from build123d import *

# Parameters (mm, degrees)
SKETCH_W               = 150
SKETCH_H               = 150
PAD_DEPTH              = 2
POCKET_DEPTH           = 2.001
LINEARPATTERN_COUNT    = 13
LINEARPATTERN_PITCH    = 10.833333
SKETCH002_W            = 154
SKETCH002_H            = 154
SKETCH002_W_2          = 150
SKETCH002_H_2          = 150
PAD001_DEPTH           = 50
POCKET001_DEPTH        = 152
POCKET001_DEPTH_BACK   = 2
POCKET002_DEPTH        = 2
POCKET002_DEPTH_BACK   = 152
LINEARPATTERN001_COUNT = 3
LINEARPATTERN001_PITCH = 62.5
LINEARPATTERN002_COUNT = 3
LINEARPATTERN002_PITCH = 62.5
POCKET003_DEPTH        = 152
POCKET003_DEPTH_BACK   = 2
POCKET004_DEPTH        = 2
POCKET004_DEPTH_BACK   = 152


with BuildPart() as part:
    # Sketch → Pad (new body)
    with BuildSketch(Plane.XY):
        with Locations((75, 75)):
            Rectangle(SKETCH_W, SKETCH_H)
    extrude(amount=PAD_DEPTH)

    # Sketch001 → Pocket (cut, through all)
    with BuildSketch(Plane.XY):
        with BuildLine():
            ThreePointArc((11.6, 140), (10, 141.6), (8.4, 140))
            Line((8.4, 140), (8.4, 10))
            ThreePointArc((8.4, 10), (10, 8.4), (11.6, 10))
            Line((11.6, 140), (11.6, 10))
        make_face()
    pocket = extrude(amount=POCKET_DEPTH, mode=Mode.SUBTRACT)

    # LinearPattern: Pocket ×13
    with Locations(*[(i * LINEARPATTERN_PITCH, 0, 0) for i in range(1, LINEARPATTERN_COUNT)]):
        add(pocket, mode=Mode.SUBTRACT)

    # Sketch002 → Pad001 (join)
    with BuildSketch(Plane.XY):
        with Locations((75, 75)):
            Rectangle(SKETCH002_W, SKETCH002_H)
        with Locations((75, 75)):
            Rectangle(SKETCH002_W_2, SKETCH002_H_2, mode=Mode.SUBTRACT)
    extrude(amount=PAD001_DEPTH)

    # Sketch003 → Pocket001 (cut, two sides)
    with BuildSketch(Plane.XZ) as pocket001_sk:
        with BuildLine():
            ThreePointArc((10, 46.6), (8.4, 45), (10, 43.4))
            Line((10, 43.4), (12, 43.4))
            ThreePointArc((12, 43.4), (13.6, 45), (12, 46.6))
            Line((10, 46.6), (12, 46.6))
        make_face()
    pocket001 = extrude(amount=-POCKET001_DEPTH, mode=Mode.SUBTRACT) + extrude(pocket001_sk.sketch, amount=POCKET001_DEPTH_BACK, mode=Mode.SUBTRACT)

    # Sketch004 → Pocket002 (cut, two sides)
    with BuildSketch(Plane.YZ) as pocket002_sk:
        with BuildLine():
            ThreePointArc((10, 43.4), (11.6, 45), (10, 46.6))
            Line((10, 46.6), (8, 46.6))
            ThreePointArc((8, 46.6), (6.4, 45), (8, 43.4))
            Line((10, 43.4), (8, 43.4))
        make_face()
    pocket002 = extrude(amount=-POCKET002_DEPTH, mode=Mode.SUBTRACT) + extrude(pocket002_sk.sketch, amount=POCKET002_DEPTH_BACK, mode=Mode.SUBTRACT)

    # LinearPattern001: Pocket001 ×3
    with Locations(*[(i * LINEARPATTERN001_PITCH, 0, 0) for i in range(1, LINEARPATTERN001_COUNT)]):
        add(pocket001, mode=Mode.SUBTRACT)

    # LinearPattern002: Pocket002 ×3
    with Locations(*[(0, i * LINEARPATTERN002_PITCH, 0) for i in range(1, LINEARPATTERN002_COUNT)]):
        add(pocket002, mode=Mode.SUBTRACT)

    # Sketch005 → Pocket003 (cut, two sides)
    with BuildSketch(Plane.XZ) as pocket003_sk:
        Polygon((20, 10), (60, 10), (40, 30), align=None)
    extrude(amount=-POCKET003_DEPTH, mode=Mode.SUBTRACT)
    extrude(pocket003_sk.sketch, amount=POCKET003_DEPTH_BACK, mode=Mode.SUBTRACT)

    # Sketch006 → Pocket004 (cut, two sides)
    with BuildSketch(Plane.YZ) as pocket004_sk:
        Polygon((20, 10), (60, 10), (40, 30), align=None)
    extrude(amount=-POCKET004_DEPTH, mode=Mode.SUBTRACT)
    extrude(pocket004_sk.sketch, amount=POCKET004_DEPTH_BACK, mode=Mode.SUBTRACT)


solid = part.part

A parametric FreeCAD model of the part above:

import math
import FreeCAD as App
import Part
import Sketcher

V = App.Vector
Q = App.Units.Quantity

doc = App.newDocument("Part")
body = doc.addObject("PartDesign::Body", "Body")

sketch1 = doc.addObject("Sketcher::SketchObject", "Sketch")
body.addObject(sketch1)
sketch1.AttachmentSupport = (doc.XY_Plane, [""])
sketch1.MapMode = "FlatFace"
sketch1.addGeometry([
    Part.LineSegment(V(0, 150, 0), V(0, 0, 0)),
    Part.LineSegment(V(0, 0, 0), V(150, 0, 0)),
    Part.LineSegment(V(150, 0, 0), V(150, 150, 0)),
    Part.LineSegment(V(150, 150, 0), V(0, 150, 0)),
], False)
sketch1.addConstraint([
    Sketcher.Constraint("Coincident", 0, 2, 1, 1),
    Sketcher.Constraint("Coincident", 1, 2, 2, 1),
    Sketcher.Constraint("Coincident", 2, 2, 3, 1),
    Sketcher.Constraint("Coincident", 3, 2, 0, 1),
    Sketcher.Constraint("Vertical", 0),
    Sketcher.Constraint("Horizontal", 1),
    Sketcher.Constraint("Vertical", 2),
    Sketcher.Constraint("Horizontal", 3),
    Sketcher.Constraint("Coincident", 0, 2, -1, 1),
    Sketcher.Constraint("Equal", 3, 0),
    Sketcher.Constraint("DistanceX", 1, 1, 1, 2, Q("150 mm")),
])
pad1 = doc.addObject("PartDesign::Pad", "Pad")
body.addObject(pad1)
pad1.Profile = sketch1
pad1.Length = 2

sketch2 = doc.addObject("Sketcher::SketchObject", "Sketch001")
body.addObject(sketch2)
sketch2.AttachmentSupport = (doc.XY_Plane, [""])
sketch2.MapMode = "FlatFace"
sketch2.addGeometry([
    Part.ArcOfCircle(Part.Circle(V(10, 140, 0), V(0, 0, 1), 1.6), math.radians(0), math.radians(180)),
    Part.LineSegment(V(8.4, 140, 0), V(8.4, 10, 0)),
    Part.ArcOfCircle(Part.Circle(V(10, 10, 0), V(0, 0, 1), 1.6), math.radians(180), math.radians(360)),
    Part.LineSegment(V(11.6, 10, 0), V(11.6, 140, 0)),
], False)
sketch2.addConstraint([
    Sketcher.Constraint("Tangent", 0, 2, 1, 1),
    Sketcher.Constraint("Tangent", 1, 2, 2, 1),
    Sketcher.Constraint("Tangent", 2, 2, 3, 1),
    Sketcher.Constraint("Tangent", 3, 2, 0, 1),
    Sketcher.Constraint("Vertical", 1),
    Sketcher.Constraint("Vertical", 3),
    Sketcher.Constraint("Radius", 0, Q("1.6 mm")),
    Sketcher.Constraint("DistanceY", 1, 2, 1, 1, Q("130 mm")),
    Sketcher.Constraint("DistanceX", -1, 1, 0, 3, Q("10 mm")),
    Sketcher.Constraint("DistanceY", -1, 1, 0, 3, Q("140 mm")),
])
pocket1 = doc.addObject("PartDesign::Pocket", "Pocket")
body.addObject(pocket1)
pocket1.Profile = sketch2
pocket1.Type = "ThroughAll"
pocket1.Reversed = True
doc.recompute()

linearpattern = doc.addObject("PartDesign::LinearPattern", "LinearPattern")
body.addObject(linearpattern)
linearpattern.Originals = [pocket1]
linearpattern.Direction = (doc.X_Axis, [""])
linearpattern.Mode = "offset"
linearpattern.Offset = 10.833333
linearpattern.Occurrences = 13
body.Tip = linearpattern

sketch3 = doc.addObject("Sketcher::SketchObject", "Sketch002")
body.addObject(sketch3)
sketch3.AttachmentSupport = (doc.XY_Plane, [""])
sketch3.MapMode = "FlatFace"
sketch3.addGeometry([
    Part.LineSegment(V(-2, 152, 0), V(-2, -2, 0)),
    Part.LineSegment(V(-2, -2, 0), V(152, -2, 0)),
    Part.LineSegment(V(152, -2, 0), V(152, 152, 0)),
    Part.LineSegment(V(152, 152, 0), V(-2, 152, 0)),
    Part.LineSegment(V(150, 0, 0), V(0, 0, 0)),
    Part.LineSegment(V(0, 0, 0), V(0, 150, 0)),
    Part.LineSegment(V(0, 150, 0), V(150, 150, 0)),
    Part.LineSegment(V(150, 150, 0), V(150, 0, 0)),
], False)
sketch3.addConstraint([
    Sketcher.Constraint("Coincident", 0, 2, 1, 1),
    Sketcher.Constraint("Coincident", 1, 2, 2, 1),
    Sketcher.Constraint("Coincident", 2, 2, 3, 1),
    Sketcher.Constraint("Coincident", 3, 2, 0, 1),
    Sketcher.Constraint("Coincident", 4, 2, 5, 1),
    Sketcher.Constraint("Coincident", 5, 2, 6, 1),
    Sketcher.Constraint("Coincident", 6, 2, 7, 1),
    Sketcher.Constraint("Coincident", 7, 2, 4, 1),
    Sketcher.Constraint("Vertical", 0),
    Sketcher.Constraint("Horizontal", 1),
    Sketcher.Constraint("Vertical", 2),
    Sketcher.Constraint("Horizontal", 3),
    Sketcher.Constraint("Horizontal", 4),
    Sketcher.Constraint("Vertical", 5),
    Sketcher.Constraint("Horizontal", 6),
    Sketcher.Constraint("Vertical", 7),
    Sketcher.Constraint("Coincident", 4, 2, -1, 1),
    Sketcher.Constraint("Equal", 3, 0),
    Sketcher.Constraint("Equal", 6, 5),
    Sketcher.Constraint("DistanceX", 1, 1, 1, 2, Q("154 mm")),
    Sketcher.Constraint("DistanceX", 4, 2, 4, 1, Q("150 mm")),
    Sketcher.Constraint("DistanceX", 0, 2, -1, 1, Q("2 mm")),
    Sketcher.Constraint("DistanceY", 0, 2, -1, 1, Q("2 mm")),
])
pad2 = doc.addObject("PartDesign::Pad", "Pad001")
body.addObject(pad2)
pad2.Profile = sketch3
pad2.Length = 50

sketch4 = doc.addObject("Sketcher::SketchObject", "Sketch003")
body.addObject(sketch4)
sketch4.AttachmentSupport = (doc.XZ_Plane, [""])
sketch4.MapMode = "FlatFace"
sketch4.addGeometry([
    Part.ArcOfCircle(Part.Circle(V(10, 45, 0), V(0, 0, 1), 1.6), math.radians(90), math.radians(270)),
    Part.LineSegment(V(10, 43.4, 0), V(12, 43.4, 0)),
    Part.ArcOfCircle(Part.Circle(V(12, 45, 0), V(0, 0, 1), 1.6), math.radians(-90), math.radians(90)),
    Part.LineSegment(V(12, 46.6, 0), V(10, 46.6, 0)),
], False)
sketch4.addConstraint([
    Sketcher.Constraint("Tangent", 0, 2, 1, 1),
    Sketcher.Constraint("Tangent", 1, 2, 2, 1),
    Sketcher.Constraint("Tangent", 2, 2, 3, 1),
    Sketcher.Constraint("Tangent", 3, 2, 0, 1),
    Sketcher.Constraint("Horizontal", 1),
    Sketcher.Constraint("Horizontal", 3),
    Sketcher.Constraint("Radius", 0, Q("1.6 mm")),
    Sketcher.Constraint("DistanceX", 1, 1, 1, 2, Q("2 mm")),
    Sketcher.Constraint("DistanceX", -1, 1, 0, 3, Q("10 mm")),
    Sketcher.Constraint("DistanceY", -1, 1, 0, 3, Q("45 mm")),
])
pocket2 = doc.addObject("PartDesign::Pocket", "Pocket001")
body.addObject(pocket2)
pocket2.Profile = sketch4
pocket2.Type = "ThroughAll"
pocket2.Midplane = True

sketch5 = doc.addObject("Sketcher::SketchObject", "Sketch004")
body.addObject(sketch5)
sketch5.AttachmentSupport = (doc.YZ_Plane, [""])
sketch5.MapMode = "FlatFace"
sketch5.addGeometry([
    Part.ArcOfCircle(Part.Circle(V(10, 45, 0), V(0, 0, 1), 1.6), math.radians(-90), math.radians(90)),
    Part.LineSegment(V(10, 46.6, 0), V(8, 46.6, 0)),
    Part.ArcOfCircle(Part.Circle(V(8, 45, 0), V(0, 0, 1), 1.6), math.radians(90), math.radians(270)),
    Part.LineSegment(V(8, 43.4, 0), V(10, 43.4, 0)),
], False)
sketch5.addConstraint([
    Sketcher.Constraint("Tangent", 0, 2, 1, 1),
    Sketcher.Constraint("Tangent", 1, 2, 2, 1),
    Sketcher.Constraint("Tangent", 2, 2, 3, 1),
    Sketcher.Constraint("Tangent", 3, 2, 0, 1),
    Sketcher.Constraint("Horizontal", 1),
    Sketcher.Constraint("Horizontal", 3),
    Sketcher.Constraint("Radius", 0, Q("1.6 mm")),
    Sketcher.Constraint("DistanceX", 1, 2, 1, 1, Q("2 mm")),
    Sketcher.Constraint("DistanceX", -1, 1, 0, 3, Q("10 mm")),
    Sketcher.Constraint("DistanceY", -1, 1, 0, 3, Q("45 mm")),
])
pocket3 = doc.addObject("PartDesign::Pocket", "Pocket002")
body.addObject(pocket3)
pocket3.Profile = sketch5
pocket3.Type = "ThroughAll"
pocket3.Midplane = True
doc.recompute()

linearpattern2 = doc.addObject("PartDesign::LinearPattern", "LinearPattern001")
body.addObject(linearpattern2)
linearpattern2.Originals = [pocket2]
linearpattern2.Direction = (doc.X_Axis, [""])
linearpattern2.Mode = "offset"
linearpattern2.Offset = 62.5
linearpattern2.Occurrences = 3
body.Tip = linearpattern2
doc.recompute()

linearpattern3 = doc.addObject("PartDesign::LinearPattern", "LinearPattern002")
body.addObject(linearpattern3)
linearpattern3.Originals = [pocket3]
linearpattern3.Direction = (doc.Y_Axis, [""])
linearpattern3.Mode = "offset"
linearpattern3.Offset = 62.5
linearpattern3.Occurrences = 3
body.Tip = linearpattern3

sketch6 = doc.addObject("Sketcher::SketchObject", "Sketch005")
body.addObject(sketch6)
sketch6.AttachmentSupport = (doc.XZ_Plane, [""])
sketch6.MapMode = "FlatFace"
sketch6.addGeometry([
    Part.LineSegment(V(20, 10, 0), V(60, 10, 0)),
    Part.LineSegment(V(60, 10, 0), V(40, 30, 0)),
    Part.LineSegment(V(40, 30, 0), V(20, 10, 0)),
], False)
sketch6.addConstraint([
    Sketcher.Constraint("Coincident", 0, 2, 1, 1),
    Sketcher.Constraint("Coincident", 1, 2, 2, 1),
    Sketcher.Constraint("Coincident", 2, 2, 0, 1),
    Sketcher.Constraint("Horizontal", 0),
    Sketcher.Constraint("Perpendicular", 1, 2),
    Sketcher.Constraint("Equal", 1, 2),
    Sketcher.Constraint("DistanceX", 0, 1, 0, 2, Q("40 mm")),
    Sketcher.Constraint("DistanceX", -1, 1, 0, 2, Q("60 mm")),
    Sketcher.Constraint("DistanceY", -1, 1, 0, 2, Q("10 mm")),
])
pocket4 = doc.addObject("PartDesign::Pocket", "Pocket003")
body.addObject(pocket4)
pocket4.Profile = sketch6
pocket4.Type = "ThroughAll"
pocket4.Midplane = True

sketch7 = doc.addObject("Sketcher::SketchObject", "Sketch006")
body.addObject(sketch7)
sketch7.AttachmentSupport = (doc.YZ_Plane, [""])
sketch7.MapMode = "FlatFace"
sketch7.addGeometry([
    Part.LineSegment(V(20, 10, 0), V(60, 10, 0)),
    Part.LineSegment(V(60, 10, 0), V(40, 30, 0)),
    Part.LineSegment(V(40, 30, 0), V(20, 10, 0)),
], False)
sketch7.addConstraint([
    Sketcher.Constraint("Coincident", 0, 2, 1, 1),
    Sketcher.Constraint("Coincident", 1, 2, 2, 1),
    Sketcher.Constraint("Coincident", 2, 2, 0, 1),
    Sketcher.Constraint("Horizontal", 0),
    Sketcher.Constraint("Perpendicular", 1, 2),
    Sketcher.Constraint("Equal", 1, 2),
    Sketcher.Constraint("DistanceX", 0, 1, 0, 2, Q("40 mm")),
    Sketcher.Constraint("DistanceX", -1, 1, 0, 2, Q("60 mm")),
    Sketcher.Constraint("DistanceY", -1, 1, 0, 2, Q("10 mm")),
])
pocket5 = doc.addObject("PartDesign::Pocket", "Pocket004")
body.addObject(pocket5)
pocket5.Profile = sketch7
pocket5.Type = "ThroughAll"
pocket5.Midplane = True

doc.recompute()
